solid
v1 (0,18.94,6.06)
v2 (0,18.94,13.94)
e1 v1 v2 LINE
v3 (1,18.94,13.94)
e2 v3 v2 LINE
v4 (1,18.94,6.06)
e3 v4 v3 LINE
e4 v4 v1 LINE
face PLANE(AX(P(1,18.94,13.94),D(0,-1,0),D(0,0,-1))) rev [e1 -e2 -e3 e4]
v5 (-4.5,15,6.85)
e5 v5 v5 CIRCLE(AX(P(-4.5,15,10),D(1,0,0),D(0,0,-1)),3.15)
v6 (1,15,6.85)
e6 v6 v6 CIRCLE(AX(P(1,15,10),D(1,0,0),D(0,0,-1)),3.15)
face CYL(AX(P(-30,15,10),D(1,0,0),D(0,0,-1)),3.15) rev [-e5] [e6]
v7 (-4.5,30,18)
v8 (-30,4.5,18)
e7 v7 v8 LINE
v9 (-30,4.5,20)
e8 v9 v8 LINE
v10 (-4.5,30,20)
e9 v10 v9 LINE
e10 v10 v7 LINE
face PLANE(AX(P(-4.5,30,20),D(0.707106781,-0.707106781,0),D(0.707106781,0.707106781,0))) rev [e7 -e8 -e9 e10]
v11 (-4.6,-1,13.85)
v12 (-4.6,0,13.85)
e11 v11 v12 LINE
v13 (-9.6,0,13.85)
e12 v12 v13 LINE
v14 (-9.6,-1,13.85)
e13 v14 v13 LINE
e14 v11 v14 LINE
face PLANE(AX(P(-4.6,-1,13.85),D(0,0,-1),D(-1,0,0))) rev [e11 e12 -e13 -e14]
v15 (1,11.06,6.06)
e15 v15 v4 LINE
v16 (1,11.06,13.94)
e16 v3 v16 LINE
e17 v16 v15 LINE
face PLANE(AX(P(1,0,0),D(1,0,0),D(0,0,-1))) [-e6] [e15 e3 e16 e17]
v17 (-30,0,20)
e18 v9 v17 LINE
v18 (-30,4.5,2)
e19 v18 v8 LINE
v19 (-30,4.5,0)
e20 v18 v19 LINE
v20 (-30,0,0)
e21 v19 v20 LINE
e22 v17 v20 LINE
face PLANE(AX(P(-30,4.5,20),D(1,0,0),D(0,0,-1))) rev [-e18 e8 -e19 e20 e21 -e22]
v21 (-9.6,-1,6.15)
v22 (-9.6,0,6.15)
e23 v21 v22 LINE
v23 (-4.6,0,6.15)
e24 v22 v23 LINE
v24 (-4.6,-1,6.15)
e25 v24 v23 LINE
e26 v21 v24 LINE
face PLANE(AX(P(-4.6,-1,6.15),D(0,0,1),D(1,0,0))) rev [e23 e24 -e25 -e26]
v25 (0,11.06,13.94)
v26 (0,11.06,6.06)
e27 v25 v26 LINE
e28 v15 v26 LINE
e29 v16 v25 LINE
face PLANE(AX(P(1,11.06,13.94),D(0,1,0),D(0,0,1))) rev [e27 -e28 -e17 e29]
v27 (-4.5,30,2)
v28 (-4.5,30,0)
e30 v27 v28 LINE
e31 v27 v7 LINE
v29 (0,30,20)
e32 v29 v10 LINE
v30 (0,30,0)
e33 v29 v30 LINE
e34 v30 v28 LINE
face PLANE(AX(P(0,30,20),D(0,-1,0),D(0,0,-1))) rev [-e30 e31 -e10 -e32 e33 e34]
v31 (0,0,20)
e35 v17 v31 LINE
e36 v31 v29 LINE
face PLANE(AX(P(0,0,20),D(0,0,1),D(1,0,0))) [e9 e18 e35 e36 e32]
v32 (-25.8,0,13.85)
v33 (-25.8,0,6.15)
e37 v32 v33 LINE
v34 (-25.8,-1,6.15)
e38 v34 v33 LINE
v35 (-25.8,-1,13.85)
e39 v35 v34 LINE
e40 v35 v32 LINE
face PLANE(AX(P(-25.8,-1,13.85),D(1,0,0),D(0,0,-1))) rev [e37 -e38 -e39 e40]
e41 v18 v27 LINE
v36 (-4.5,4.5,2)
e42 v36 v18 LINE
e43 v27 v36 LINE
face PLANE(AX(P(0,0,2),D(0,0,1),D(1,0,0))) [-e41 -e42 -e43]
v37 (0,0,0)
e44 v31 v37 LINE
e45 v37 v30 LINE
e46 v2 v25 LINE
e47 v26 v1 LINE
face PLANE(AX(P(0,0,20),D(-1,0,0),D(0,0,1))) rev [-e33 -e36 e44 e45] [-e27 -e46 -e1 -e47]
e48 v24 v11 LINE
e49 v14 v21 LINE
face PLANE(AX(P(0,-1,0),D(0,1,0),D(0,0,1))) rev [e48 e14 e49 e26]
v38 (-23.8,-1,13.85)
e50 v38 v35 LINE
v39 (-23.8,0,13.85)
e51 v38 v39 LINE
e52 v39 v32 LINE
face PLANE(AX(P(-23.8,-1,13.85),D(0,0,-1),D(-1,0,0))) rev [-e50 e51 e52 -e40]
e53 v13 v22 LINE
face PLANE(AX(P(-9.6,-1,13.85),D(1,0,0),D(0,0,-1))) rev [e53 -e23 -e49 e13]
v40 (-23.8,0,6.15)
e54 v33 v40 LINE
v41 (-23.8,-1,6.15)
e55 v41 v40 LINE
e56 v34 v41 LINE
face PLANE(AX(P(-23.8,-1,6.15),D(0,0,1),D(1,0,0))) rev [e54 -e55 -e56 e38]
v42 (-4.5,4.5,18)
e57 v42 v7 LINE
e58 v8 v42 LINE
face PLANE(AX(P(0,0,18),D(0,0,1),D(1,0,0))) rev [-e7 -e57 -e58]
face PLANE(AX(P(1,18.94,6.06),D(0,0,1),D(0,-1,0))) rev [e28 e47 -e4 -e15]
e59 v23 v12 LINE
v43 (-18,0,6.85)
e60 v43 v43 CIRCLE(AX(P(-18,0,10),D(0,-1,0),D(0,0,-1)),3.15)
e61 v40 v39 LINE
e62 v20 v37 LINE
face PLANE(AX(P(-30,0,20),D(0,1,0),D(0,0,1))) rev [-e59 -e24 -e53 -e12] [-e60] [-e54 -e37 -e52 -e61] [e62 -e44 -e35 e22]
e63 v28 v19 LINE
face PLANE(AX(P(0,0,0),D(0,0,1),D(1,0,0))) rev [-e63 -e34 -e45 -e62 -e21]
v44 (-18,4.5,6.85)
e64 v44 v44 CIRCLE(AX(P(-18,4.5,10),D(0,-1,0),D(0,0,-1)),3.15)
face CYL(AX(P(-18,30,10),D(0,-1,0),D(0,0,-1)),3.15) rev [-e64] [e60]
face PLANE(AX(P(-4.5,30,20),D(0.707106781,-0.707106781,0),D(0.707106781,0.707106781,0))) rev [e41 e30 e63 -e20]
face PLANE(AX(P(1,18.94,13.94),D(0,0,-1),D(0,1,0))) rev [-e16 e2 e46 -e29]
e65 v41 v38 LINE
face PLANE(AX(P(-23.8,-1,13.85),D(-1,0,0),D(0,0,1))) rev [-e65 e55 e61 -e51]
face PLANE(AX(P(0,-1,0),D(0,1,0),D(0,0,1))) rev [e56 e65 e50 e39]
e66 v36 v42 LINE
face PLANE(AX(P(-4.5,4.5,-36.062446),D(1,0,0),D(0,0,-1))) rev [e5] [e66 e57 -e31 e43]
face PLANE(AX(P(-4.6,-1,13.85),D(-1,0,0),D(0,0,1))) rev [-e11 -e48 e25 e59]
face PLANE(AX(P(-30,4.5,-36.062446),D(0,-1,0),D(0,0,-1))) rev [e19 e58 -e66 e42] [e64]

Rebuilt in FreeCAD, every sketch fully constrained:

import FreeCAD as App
import Part
import Sketcher
from FreeCAD import Vector

doc = App.newDocument("Part")
body = doc.addObject("PartDesign::Body", "Body")

# Sketch on XY plane
sketch1 = body.newObject("Sketcher::SketchObject", "Sketch")
sketch1.AttachmentSupport = (doc.getObject("XY_Plane"), [""])
sketch1.MapMode = "FlatFace"
sketch1.addGeometry(Part.LineSegment(Vector(0, 0, 0), Vector(0, 30, 0)), False)
sketch1.addGeometry(Part.LineSegment(Vector(0, 30, 0), Vector(-4.5, 30, 0)), False)
sketch1.addGeometry(Part.LineSegment(Vector(-4.5, 30, 0), Vector(-30, 4.5, 0)), False)
sketch1.addGeometry(Part.LineSegment(Vector(-30, 4.5, 0), Vector(-30, 0, 0)), False)
sketch1.addGeometry(Part.LineSegment(Vector(-30, 0, 0), Vector(0, 0, 0)), False)
sketch1.addConstraint(Sketcher.Constraint("Coincident", 0, 2, 1, 1))
sketch1.addConstraint(Sketcher.Constraint("Coincident", 1, 2, 2, 1))
sketch1.addConstraint(Sketcher.Constraint("Coincident", 2, 2, 3, 1))
sketch1.addConstraint(Sketcher.Constraint("Coincident", 3, 2, 4, 1))
sketch1.addConstraint(Sketcher.Constraint("Coincident", 4, 2, 0, 1))
sketch1.addConstraint(Sketcher.Constraint("Vertical", 0))
sketch1.addConstraint(Sketcher.Constraint("Horizontal", 1))
sketch1.addConstraint(Sketcher.Constraint("Vertical", 3))
sketch1.addConstraint(Sketcher.Constraint("Horizontal", 4))
sketch1.addConstraint(Sketcher.Constraint("Coincident", 4, 2, -1, 1))
sketch1.addConstraint(Sketcher.Constraint("Equal", 4, 0))
sketch1.addConstraint(Sketcher.Constraint("Equal", 1, 3))
sketch1.addConstraint(Sketcher.Constraint("DistanceX", 4, 1, 4, 2, 30.0))
sketch1.addConstraint(Sketcher.Constraint("DistanceX", 1, 2, 1, 1, 4.5))
pad1 = body.newObject("PartDesign::Pad", "Pad")
pad1.Profile = sketch1
pad1.Length = 20

# Sketch on XY plane
sketch2 = body.newObject("Sketcher::SketchObject", "Sketch001")
sketch2.AttachmentSupport = (doc.getObject("XY_Plane"), [""])
sketch2.MapMode = "FlatFace"
sketch2.AttachmentOffset = App.Placement(Vector(0, 0, 18), App.Rotation())
sketch2.addGeometry(Part.LineSegment(Vector(-30, 4, 0), Vector(-4, 4, 0)), False)
sketch2.addGeometry(Part.LineSegment(Vector(-4, 4, 0), Vector(-4, 30, 0)), False)
sketch2.addGeometry(Part.LineSegment(Vector(-4, 30, 0), Vector(-30, 4, 0)), False)
sketch2.addConstraint(Sketcher.Constraint("Coincident", 0, 2, 1, 1))
sketch2.addConstraint(Sketcher.Constraint("Coincident", 1, 2, 2, 1))
sketch2.addConstraint(Sketcher.Constraint("Coincident", 2, 2, 0, 1))
sketch2.addConstraint(Sketcher.Constraint("Horizontal", 0))
sketch2.addConstraint(Sketcher.Constraint("Vertical", 1))
sketch2.addConstraint(Sketcher.Constraint("Equal", 0, 1))
sketch2.addConstraint(Sketcher.Constraint("DistanceX", 0, 1, 0, 2, 25.5))
sketch2.addConstraint(Sketcher.Constraint("DistanceY", -1, 1, 1, 2, 30.0))
sketch2.addConstraint(Sketcher.Constraint("DistanceX", 2, 2, -1, 1, 30.0))
pocket1 = body.newObject("PartDesign::Pocket", "Pocket")
pocket1.Profile = sketch2
pocket1.Length = 16

# Sketch on YZ plane
sketch3 = body.newObject("Sketcher::SketchObject", "Sketch002")
sketch3.AttachmentSupport = (doc.getObject("YZ_Plane"), [""])
sketch3.MapMode = "FlatFace"
sketch3.addGeometry(Part.LineSegment(Vector(19, 14, 0), Vector(11, 14, 0)), False)
sketch3.addGeometry(Part.LineSegment(Vector(11, 14, 0), Vector(11, 6, 0)), False)
sketch3.addGeometry(Part.LineSegment(Vector(11, 6, 0), Vector(19, 6, 0)), False)
sketch3.addGeometry(Part.LineSegment(Vector(19, 6, 0), Vector(19, 14, 0)), False)
sketch3.addConstraint(Sketcher.Constraint("Coincident", 0, 2, 1, 1))
sketch3.addConstraint(Sketcher.Constraint("Coincident", 1, 2, 2, 1))
sketch3.addConstraint(Sketcher.Constraint("Coincident", 2, 2, 3, 1))
sketch3.addConstraint(Sketcher.Constraint("Coincident", 3, 2, 0, 1))
sketch3.addConstraint(Sketcher.Constraint("Horizontal", 0))
sketch3.addConstraint(Sketcher.Constraint("Vertical", 1))
sketch3.addConstraint(Sketcher.Constraint("Horizontal", 2))
sketch3.addConstraint(Sketcher.Constraint("Vertical", 3))
sketch3.addConstraint(Sketcher.Constraint("Equal", 2, 1))
sketch3.addConstraint(Sketcher.Constraint("DistanceX", 0, 2, 0, 1, 7.88))
sketch3.addConstraint(Sketcher.Constraint("DistanceX", -1, 1, 0, 2, 11.06))
sketch3.addConstraint(Sketcher.Constraint("DistanceY", -1, 1, 0, 2, 13.94))
pad2 = body.newObject("PartDesign::Pad", "Pad001")
pad2.Profile = sketch3
pad2.Length = 1

# Sketch on YZ plane
sketch4 = body.newObject("Sketcher::SketchObject", "Sketch003")
sketch4.AttachmentSupport = (doc.getObject("YZ_Plane"), [""])
sketch4.MapMode = "FlatFace"
sketch4.AttachmentOffset = App.Placement(Vector(0, 0, 1), App.Rotation())
sketch4.addGeometry(Part.Circle(Vector(15, 10, 0), Vector(0, 0, 1), 3.1), False)
sketch4.addConstraint(Sketcher.Constraint("Diameter", 0, 6.3))
sketch4.addConstraint(Sketcher.Constraint("DistanceX", -1, 1, 0, 3, 15.0))
sketch4.addConstraint(Sketcher.Constraint("DistanceY", -1, 1, 0, 3, 10.0))
pocket2 = body.newObject("PartDesign::Pocket", "Pocket001")
pocket2.Profile = sketch4
pocket2.Type = "ThroughAll"

# Sketch on XZ plane
sketch5 = body.newObject("Sketcher::SketchObject", "Sketch004")
sketch5.AttachmentSupport = (doc.getObject("XZ_Plane"), [""])
sketch5.MapMode = "FlatFace"
sketch5.addGeometry(Part.LineSegment(Vector(-25.8, 13.8, 0), Vector(-25.8, 6.2, 0)), False)
sketch5.addGeometry(Part.LineSegment(Vector(-25.8, 6.2, 0), Vector(-23.8, 6.2, 0)), False)
sketch5.addGeometry(Part.LineSegment(Vector(-23.8, 6.2, 0), Vector(-23.8, 13.8, 0)), False)
sketch5.addGeometry(Part.LineSegment(Vector(-23.8, 13.8, 0), Vector(-25.8, 13.8, 0)), False)
sketch5.addGeometry(Part.LineSegment(Vector(-9.6, 13.8, 0), Vector(-9.6, 6.2, 0)), False)
sketch5.addGeometry(Part.LineSegment(Vector(-9.6, 6.2, 0), Vector(-4.6, 6.2, 0)), False)
sketch5.addGeometry(Part.LineSegment(Vector(-4.6, 6.2, 0), Vector(-4.6, 13.8, 0)), False)
sketch5.addGeometry(Part.LineSegment(Vector(-4.6, 13.8, 0), Vector(-9.6, 13.8, 0)), False)
sketch5.addConstraint(Sketcher.Constraint("Coincident", 0, 2, 1, 1))
sketch5.addConstraint(Sketcher.Constraint("Coincident", 1, 2, 2, 1))
sketch5.addConstraint(Sketcher.Constraint("Coincident", 2, 2, 3, 1))
sketch5.addConstraint(Sketcher.Constraint("Coincident", 3, 2, 0, 1))
sketch5.addConstraint(Sketcher.Constraint("Coincident", 4, 2, 5, 1))
sketch5.addConstraint(Sketcher.Constraint("Coincident", 5, 2, 6, 1))
sketch5.addConstraint(Sketcher.Constraint("Coincident", 6, 2, 7, 1))
sketch5.addConstraint(Sketcher.Constraint("Coincident", 7, 2, 4, 1))
sketch5.addConstraint(Sketcher.Constraint("Vertical", 0))
sketch5.addConstraint(Sketcher.Constraint("Horizontal", 1))
sketch5.addConstraint(Sketcher.Constraint("Vertical", 2))
sketch5.addConstraint(Sketcher.Constraint("Horizontal", 3))
sketch5.addConstraint(Sketcher.Constraint("Vertical", 4))
sketch5.addConstraint(Sketcher.Constraint("Horizontal", 5))
sketch5.addConstraint(Sketcher.Constraint("Vertical", 6))
sketch5.addConstraint(Sketcher.Constraint("Horizontal", 7))
sketch5.addConstraint(Sketcher.Constraint("Horizontal", 1, 2, 4, 2))
sketch5.addConstraint(Sketcher.Constraint("Horizontal", 3, 2, 6, 2))
sketch5.addConstraint(Sketcher.Constraint("DistanceX", 1, 1, 1, 2, 2.0))
sketch5.addConstraint(Sketcher.Constraint("DistanceX", 5, 1, 5, 2, 5.0))
sketch5.addConstraint(Sketcher.Constraint("DistanceY", 0, 2, 0, 1, 7.7))
sketch5.addConstraint(Sketcher.Constraint("DistanceX", 0, 2, -1, 1, 25.8))
sketch5.addConstraint(Sketcher.Constraint("DistanceX", 4, 2, -1, 1, 9.6))
sketch5.addConstraint(Sketcher.Constraint("DistanceY", -1, 1, 0, 2, 6.15))
pad3 = body.newObject("PartDesign::Pad", "Pad002")
pad3.Profile = sketch5
pad3.Length = 1

# Sketch on XZ plane
sketch6 = body.newObject("Sketcher::SketchObject", "Sketch005")
sketch6.AttachmentSupport = (doc.getObject("XZ_Plane"), [""])
sketch6.MapMode = "FlatFace"
sketch6.addGeometry(Part.Circle(Vector(-18, 10, 0), Vector(0, 0, 1), 3.1), False)
sketch6.addConstraint(Sketcher.Constraint("Diameter", 0, 6.3))
sketch6.addConstraint(Sketcher.Constraint("DistanceX", 0, 3, -1, 1, 18.0))
sketch6.addConstraint(Sketcher.Constraint("DistanceY", -1, 1, 0, 3, 10.0))
pocket3 = body.newObject("PartDesign::Pocket", "Pocket002")
pocket3.Profile = sketch6
pocket3.Type = "ThroughAll"

doc.recompute()
